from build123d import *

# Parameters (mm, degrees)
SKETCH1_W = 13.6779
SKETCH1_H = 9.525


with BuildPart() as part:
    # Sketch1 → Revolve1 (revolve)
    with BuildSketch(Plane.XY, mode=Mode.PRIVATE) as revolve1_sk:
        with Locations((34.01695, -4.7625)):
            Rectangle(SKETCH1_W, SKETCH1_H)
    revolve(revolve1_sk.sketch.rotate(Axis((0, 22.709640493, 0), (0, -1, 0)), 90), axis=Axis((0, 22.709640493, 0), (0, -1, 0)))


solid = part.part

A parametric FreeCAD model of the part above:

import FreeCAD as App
import Part
import Sketcher

V = App.Vector
Q = App.Units.Quantity


def add_polygon(sketch, points):
    """Adds a closed chain of lines whose ends are joined by coincident constraints."""
    first, n = sketch.GeometryCount, len(points)
    for a, b in zip(points, points[1:] + points[:1]):
        sketch.addGeometry(Part.LineSegment(App.Vector(*a, 0), App.Vector(*b, 0)), False)
    for i in range(n):
        sketch.addConstraint(Sketcher.Constraint("Coincident", first + i, 2, first + (i + 1) % n, 1))

doc = App.newDocument("Part")
params = doc.addObject("Spreadsheet::Sheet", "Params")
for row, (alias, value) in enumerate([
    ("sketch1_height", "0.375 in"),
    ("revolution_angle", "360 deg"),
], start=1):
    params.set(f"A{row}", alias)
    params.set(f"B{row}", "=" + value)
    params.setAlias(f"B{row}", alias)

body = doc.addObject("PartDesign::Body", "Body")

sketch1 = body.newObject("Sketcher::SketchObject", "Sketch")
sketch1.AttachmentSupport = (doc.getObject("XY_Plane"), [""])
sketch1.MapMode = "FlatFace"
add_polygon(sketch1, [(27, 0), (27, -10), (41, -10), (41, 0)])
sketch1.addConstraint([
    Sketcher.Constraint("Vertical", 0),
    Sketcher.Constraint("Horizontal", 1),
    Sketcher.Constraint("Vertical", 2),
    Sketcher.Constraint("Horizontal", 3),
    Sketcher.Constraint("PointOnObject", 2, 2, -1),
    Sketcher.Constraint("DistanceY", 0, 2, 0, 1, Q("0.375 in")),
    Sketcher.Constraint("DistanceX", -1, 1, 0, 2, Q("1.07 in")),
    Sketcher.Constraint("DistanceX", 1, 1, 1, 2, Q("0.5385 in")),
])
sketch1.setExpression("Constraints[9]", "Params.sketch1_height")
revolution = body.newObject("PartDesign::Revolution", "Revolution")
revolution.Profile = sketch1
revolution.ReferenceAxis = (sketch1, ["V_Axis"])
revolution.setExpression("Angle", "Params.revolution_angle")

doc.recompute()
